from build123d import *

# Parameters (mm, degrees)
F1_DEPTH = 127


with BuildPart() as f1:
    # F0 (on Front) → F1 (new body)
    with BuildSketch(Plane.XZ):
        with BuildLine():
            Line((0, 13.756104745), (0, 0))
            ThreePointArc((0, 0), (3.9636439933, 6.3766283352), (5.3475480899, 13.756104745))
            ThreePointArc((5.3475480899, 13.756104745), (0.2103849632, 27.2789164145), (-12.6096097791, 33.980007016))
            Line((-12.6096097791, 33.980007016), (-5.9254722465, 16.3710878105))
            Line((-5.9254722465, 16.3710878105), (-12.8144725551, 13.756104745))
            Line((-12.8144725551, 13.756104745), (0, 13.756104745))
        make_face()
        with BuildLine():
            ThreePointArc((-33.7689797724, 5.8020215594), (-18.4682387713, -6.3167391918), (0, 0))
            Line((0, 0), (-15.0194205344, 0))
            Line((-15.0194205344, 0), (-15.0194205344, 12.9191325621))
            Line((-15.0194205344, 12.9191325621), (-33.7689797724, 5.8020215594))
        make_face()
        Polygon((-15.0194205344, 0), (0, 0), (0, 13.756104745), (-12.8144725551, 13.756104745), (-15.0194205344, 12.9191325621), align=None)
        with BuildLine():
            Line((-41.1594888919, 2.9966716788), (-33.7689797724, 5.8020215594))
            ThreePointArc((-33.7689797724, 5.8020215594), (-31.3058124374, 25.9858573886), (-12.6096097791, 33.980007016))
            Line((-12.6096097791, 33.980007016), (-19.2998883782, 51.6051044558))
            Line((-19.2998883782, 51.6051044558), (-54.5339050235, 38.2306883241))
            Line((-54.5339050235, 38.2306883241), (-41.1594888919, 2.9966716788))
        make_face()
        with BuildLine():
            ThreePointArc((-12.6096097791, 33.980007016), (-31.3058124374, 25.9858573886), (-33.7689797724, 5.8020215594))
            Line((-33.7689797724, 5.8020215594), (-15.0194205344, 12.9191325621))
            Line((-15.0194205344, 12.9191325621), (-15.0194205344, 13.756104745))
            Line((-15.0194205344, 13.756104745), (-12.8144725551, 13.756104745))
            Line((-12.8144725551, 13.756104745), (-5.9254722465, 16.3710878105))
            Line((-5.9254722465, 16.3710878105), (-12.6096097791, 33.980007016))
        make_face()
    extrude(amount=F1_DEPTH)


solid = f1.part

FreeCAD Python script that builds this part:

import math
import FreeCAD as App
import Part
import Sketcher
from FreeCAD import Vector
Q = App.Units.Quantity


def add_polygon(sketch, points):
    """Adds a closed chain of lines whose ends are joined by coincident constraints."""
    first, n = sketch.GeometryCount, len(points)
    for a, b in zip(points, points[1:] + points[:1]):
        sketch.addGeometry(Part.LineSegment(App.Vector(*a, 0), App.Vector(*b, 0)), False)
    for i in range(n):
        sketch.addConstraint(Sketcher.Constraint("Coincident", first + i, 2, first + (i + 1) % n, 1))

doc = App.newDocument("Part")
body = doc.addObject("PartDesign::Body", "Body")

# Sketch on XZ plane
sketch1 = body.newObject("Sketcher::SketchObject", "Sketch")
sketch1.AttachmentSupport = (doc.getObject("XZ_Plane"), [""])
sketch1.MapMode = "FlatFace"
sketch1.addGeometry(Part.ArcOfCircle(Part.Circle(Vector(-15, 13.8, 0), Vector(0, 0, 1), 20.4), math.radians(-42), math.radians(0)), False)  # 0
sketch1.addGeometry(Part.ArcOfCircle(Part.Circle(Vector(-15, 13.8, 0), Vector(0, 0, 1), 20.4), math.radians(0), math.radians(83)), False)  # 1
sketch1.addGeometry(Part.LineSegment(Vector(-12.6, 34, 0), Vector(-19.3, 51.6, 0)), False)  # 2
sketch1.addGeometry(Part.LineSegment(Vector(-19.3, 51.6, 0), Vector(-54.5, 38.2, 0)), False)  # 3
sketch1.addGeometry(Part.LineSegment(Vector(-54.5, 38.2, 0), Vector(-41.2, 3, 0)), False)  # 4
sketch1.addGeometry(Part.LineSegment(Vector(-41.2, 3, 0), Vector(-33.8, 5.8, 0)), False)  # 5
sketch1.addGeometry(Part.ArcOfCircle(Part.Circle(Vector(-15, 13.8, 0), Vector(0, 0, 1), 20.4), math.radians(-157), math.radians(-42)), False)  # 6
add_polygon(sketch1, [(-12.8, 13.8), (-15, 12.9), (-15, 13.8)])  # lines 7-9
sketch1.addConstraint([
    Sketcher.Constraint("Tangent", 0, 2, 1, 1),
    Sketcher.Constraint("Coincident", 1, 2, 2, 1),
    Sketcher.Constraint("Coincident", 2, 2, 3, 1),
    Sketcher.Constraint("Coincident", 3, 2, 4, 1),
    Sketcher.Constraint("Coincident", 4, 2, 5, 1),
    Sketcher.Constraint("Coincident", 5, 2, 6, 1),
    Sketcher.Constraint("Tangent", 6, 2, 0, 1),
    Sketcher.Constraint("Vertical", 8),
    Sketcher.Constraint("Horizontal", 9),
    Sketcher.Constraint("Coincident", 6, 2, -1, 1),
    Sketcher.Constraint("Coincident", 8, 2, 0, 3),
    Sketcher.Constraint("Equal", 0, 1),
    Sketcher.Constraint("Equal", 1, 6),
    Sketcher.Constraint("Perpendicular", 2, 3),
    Sketcher.Constraint("Perpendicular", 3, 4),
    Sketcher.Constraint("Perpendicular", 4, 5),
    Sketcher.Constraint("Parallel", 5, 7),
    Sketcher.Constraint("Horizontal", 6, 3, 0, 2),
    Sketcher.Constraint("Equal", 3, 4),
    Sketcher.Constraint("Radius", 0, 20.366969),
    Sketcher.Constraint("DistanceY", 0, 3, 2, 2, 37.849),
    Sketcher.Constraint("Distance", 2, 18.852159),
    Sketcher.Constraint("DistanceX", 9, 1, 9, 2, 2.204948),
    Sketcher.Constraint("DistanceY", 8, 1, 8, 2, 0.836972),
    Sketcher.Constraint("DistanceX", 0, 3, -1, 1, 15.019421),
    Sketcher.Constraint("DistanceY", -1, 1, 3, 2, 38.230688),
])
pad1 = body.newObject("PartDesign::Pad", "Pad")
pad1.Profile = sketch1
pad1.Length = Q("5 in")

doc.recompute()
